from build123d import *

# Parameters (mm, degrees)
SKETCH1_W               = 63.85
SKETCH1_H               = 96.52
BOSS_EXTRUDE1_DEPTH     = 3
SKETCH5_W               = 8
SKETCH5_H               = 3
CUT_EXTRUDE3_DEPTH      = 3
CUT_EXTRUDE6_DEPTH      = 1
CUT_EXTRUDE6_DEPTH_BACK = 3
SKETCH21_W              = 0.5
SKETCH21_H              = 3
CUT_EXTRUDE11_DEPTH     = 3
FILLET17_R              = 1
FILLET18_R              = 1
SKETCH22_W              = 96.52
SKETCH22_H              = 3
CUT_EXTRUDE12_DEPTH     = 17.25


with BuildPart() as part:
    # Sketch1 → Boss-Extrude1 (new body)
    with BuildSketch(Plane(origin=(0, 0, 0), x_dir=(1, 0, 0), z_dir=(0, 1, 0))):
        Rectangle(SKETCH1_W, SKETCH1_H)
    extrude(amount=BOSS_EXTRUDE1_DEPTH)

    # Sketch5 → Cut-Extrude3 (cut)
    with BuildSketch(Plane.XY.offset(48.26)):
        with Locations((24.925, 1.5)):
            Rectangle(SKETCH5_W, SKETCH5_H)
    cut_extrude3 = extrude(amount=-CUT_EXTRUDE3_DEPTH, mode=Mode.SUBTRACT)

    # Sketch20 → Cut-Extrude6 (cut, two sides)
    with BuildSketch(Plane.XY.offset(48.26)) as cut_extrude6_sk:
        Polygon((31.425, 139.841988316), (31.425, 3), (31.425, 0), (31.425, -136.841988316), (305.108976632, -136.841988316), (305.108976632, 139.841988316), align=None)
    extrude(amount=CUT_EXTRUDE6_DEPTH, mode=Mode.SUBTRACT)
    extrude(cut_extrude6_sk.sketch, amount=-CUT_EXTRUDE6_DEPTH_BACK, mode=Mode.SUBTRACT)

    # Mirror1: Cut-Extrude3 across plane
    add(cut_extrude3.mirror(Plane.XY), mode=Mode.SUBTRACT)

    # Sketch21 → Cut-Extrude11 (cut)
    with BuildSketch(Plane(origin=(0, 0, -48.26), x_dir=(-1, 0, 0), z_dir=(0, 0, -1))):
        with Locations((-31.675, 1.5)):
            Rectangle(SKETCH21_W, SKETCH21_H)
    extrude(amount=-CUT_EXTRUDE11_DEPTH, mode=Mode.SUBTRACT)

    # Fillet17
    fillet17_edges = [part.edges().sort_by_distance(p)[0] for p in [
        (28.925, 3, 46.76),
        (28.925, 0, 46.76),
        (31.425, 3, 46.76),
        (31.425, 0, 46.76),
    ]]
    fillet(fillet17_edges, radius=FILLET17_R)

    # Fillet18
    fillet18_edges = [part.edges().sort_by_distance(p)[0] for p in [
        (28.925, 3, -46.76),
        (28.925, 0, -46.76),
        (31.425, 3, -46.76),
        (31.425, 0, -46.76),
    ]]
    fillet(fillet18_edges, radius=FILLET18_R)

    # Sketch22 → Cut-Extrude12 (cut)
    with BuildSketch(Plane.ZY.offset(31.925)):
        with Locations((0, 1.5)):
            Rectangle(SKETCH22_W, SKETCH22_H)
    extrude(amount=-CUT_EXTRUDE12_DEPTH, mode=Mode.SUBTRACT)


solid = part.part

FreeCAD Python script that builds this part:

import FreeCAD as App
import Part
import Sketcher

V = App.Vector


def edges_at(feature, points):
    """Names of the edges that pass closest to the given points."""
    edges = feature.Shape.Edges
    near = lambda p: min(range(len(edges)), key=lambda i: edges[i].distToShape(Part.Vertex(*p))[0])
    return sorted({f"Edge{near(p) + 1}" for p in points})

doc = App.newDocument("Part")
body = doc.addObject("PartDesign::Body", "Body")

# Sketch on XZ plane
sketch1 = body.newObject("Sketcher::SketchObject", "Sketch")
sketch1.AttachmentSupport = (doc.getObject("XZ_Plane"), [""])
sketch1.MapMode = "FlatFace"
sketch1.addGeometry(Part.LineSegment(V(-32, -48, 0), V(-32, 48, 0)), False)
sketch1.addGeometry(Part.LineSegment(V(-32, 48, 0), V(32, 48, 0)), False)
sketch1.addGeometry(Part.LineSegment(V(32, 48, 0), V(32, -48, 0)), False)
sketch1.addGeometry(Part.LineSegment(V(32, -48, 0), V(-32, -48, 0)), False)
sketch1.addConstraint(Sketcher.Constraint("Coincident", 0, 2, 1, 1))
sketch1.addConstraint(Sketcher.Constraint("Coincident", 1, 2, 2, 1))
sketch1.addConstraint(Sketcher.Constraint("Coincident", 2, 2, 3, 1))
sketch1.addConstraint(Sketcher.Constraint("Coincident", 3, 2, 0, 1))
sketch1.addConstraint(Sketcher.Constraint("Vertical", 0))
sketch1.addConstraint(Sketcher.Constraint("Horizontal", 1))
sketch1.addConstraint(Sketcher.Constraint("Vertical", 2))
sketch1.addConstraint(Sketcher.Constraint("Horizontal", 3))
sketch1.addConstraint(Sketcher.Constraint("Symmetric", 0, 2, 2, 2, -1, 1))
sketch1.addConstraint(Sketcher.Constraint("DistanceX", 1, 1, 1, 2, 63.85))
sketch1.addConstraint(Sketcher.Constraint("DistanceY", 0, 1, 0, 2, 96.52))
pad1 = body.newObject("PartDesign::Pad", "Pad")
pad1.Profile = sketch1
pad1.Length = 3
pad1.Reversed = True

# Sketch on XY plane
sketch2 = body.newObject("Sketcher::SketchObject", "Sketch001")
sketch2.AttachmentSupport = (doc.getObject("XY_Plane"), [""])
sketch2.MapMode = "FlatFace"
sketch2.AttachmentOffset = App.Placement(V(0, 0, 48.26), App.Rotation())
sketch2.addGeometry(Part.LineSegment(V(20.9, 3, 0), V(20.9, 0, 0)), False)
sketch2.addGeometry(Part.LineSegment(V(20.9, 0, 0), V(28.9, 0, 0)), False)
sketch2.addGeometry(Part.LineSegment(V(28.9, 0, 0), V(28.9, 3, 0)), False)
sketch2.addGeometry(Part.LineSegment(V(28.9, 3, 0), V(20.9, 3, 0)), False)
sketch2.addConstraint(Sketcher.Constraint("Coincident", 0, 2, 1, 1))
sketch2.addConstraint(Sketcher.Constraint("Coincident", 1, 2, 2, 1))
sketch2.addConstraint(Sketcher.Constraint("Coincident", 2, 2, 3, 1))
sketch2.addConstraint(Sketcher.Constraint("Coincident", 3, 2, 0, 1))
sketch2.addConstraint(Sketcher.Constraint("Vertical", 0))
sketch2.addConstraint(Sketcher.Constraint("Horizontal", 1))
sketch2.addConstraint(Sketcher.Constraint("Vertical", 2))
sketch2.addConstraint(Sketcher.Constraint("Horizontal", 3))
sketch2.addConstraint(Sketcher.Constraint("PointOnObject", 0, 2, -1))
sketch2.addConstraint(Sketcher.Constraint("DistanceX", 1, 1, 1, 2, 8.0))
sketch2.addConstraint(Sketcher.Constraint("DistanceY", 0, 2, 0, 1, 3.0))
sketch2.addConstraint(Sketcher.Constraint("DistanceX", -1, 1, 0, 2, 20.925))
pocket1 = body.newObject("PartDesign::Pocket", "Pocket")
pocket1.Profile = sketch2
pocket1.Length = 3

# Sketch on XY plane
sketch3 = body.newObject("Sketcher::SketchObject", "Sketch002")
sketch3.AttachmentSupport = (doc.getObject("XY_Plane"), [""])
sketch3.MapMode = "FlatFace"
sketch3.AttachmentOffset = App.Placement(V(0, 0, 48.26), App.Rotation())
sketch3.addGeometry(Part.LineSegment(V(31, 140, 0), V(31, -137, 0)), False)
sketch3.addGeometry(Part.LineSegment(V(31, -137, 0), V(305, -137, 0)), False)
sketch3.addGeometry(Part.LineSegment(V(305, -137, 0), V(305, 140, 0)), False)
sketch3.addGeometry(Part.LineSegment(V(305, 140, 0), V(31, 140, 0)), False)
sketch3.addConstraint(Sketcher.Constraint("Coincident", 0, 2, 1, 1))
sketch3.addConstraint(Sketcher.Constraint("Coincident", 1, 2, 2, 1))
sketch3.addConstraint(Sketcher.Constraint("Coincident", 2, 2, 3, 1))
sketch3.addConstraint(Sketcher.Constraint("Coincident", 3, 2, 0, 1))
sketch3.addConstraint(Sketcher.Constraint("Vertical", 0))
sketch3.addConstraint(Sketcher.Constraint("Horizontal", 1))
sketch3.addConstraint(Sketcher.Constraint("Vertical", 2))
sketch3.addConstraint(Sketcher.Constraint("Horizontal", 3))
sketch3.addConstraint(Sketcher.Constraint("DistanceX", -1, 1, 0, 2, 31.425))
sketch3.addConstraint(Sketcher.Constraint("DistanceX", 1, 1, 1, 2, 273.683977))
sketch3.addConstraint(Sketcher.Constraint("DistanceY", 0, 2, 0, 1, 276.683977))
sketch3.addConstraint(Sketcher.Constraint("DistanceY", 0, 2, -1, 1, 136.841988))
pocket2 = body.newObject("PartDesign::Pocket", "Pocket001")
pocket2.Profile = sketch3
pocket2.Type = "TwoLengths"
pocket2.Length = 1
pocket2.Length2 = 3
pocket2.Reversed = True
doc.recompute()

mirrored = body.newObject("PartDesign::Mirrored", "Mirrored")
mirrored.Originals = [pocket1]
mirrored.MirrorPlane = (doc.getObject("XY_Plane"), [""])
body.Tip = mirrored

# Sketch on XY plane
sketch4 = body.newObject("Sketcher::SketchObject", "Sketch003")
sketch4.AttachmentSupport = (doc.getObject("XY_Plane"), [""])
sketch4.MapMode = "FlatFace"
sketch4.AttachmentOffset = App.Placement(V(0, 0, -48.26), App.Rotation())
sketch4.addGeometry(Part.LineSegment(V(31.9, 3, 0), V(31.9, 0, 0)), False)
sketch4.addGeometry(Part.LineSegment(V(31.9, 0, 0), V(31.4, 0, 0)), False)
sketch4.addGeometry(Part.LineSegment(V(31.4, 0, 0), V(31.4, 3, 0)), False)
sketch4.addGeometry(Part.LineSegment(V(31.4, 3, 0), V(31.9, 3, 0)), False)
sketch4.addConstraint(Sketcher.Constraint("Coincident", 0, 2, 1, 1))
sketch4.addConstraint(Sketcher.Constraint("Coincident", 1, 2, 2, 1))
sketch4.addConstraint(Sketcher.Constraint("Coincident", 2, 2, 3, 1))
sketch4.addConstraint(Sketcher.Constraint("Coincident", 3, 2, 0, 1))
sketch4.addConstraint(Sketcher.Constraint("Vertical", 0))
sketch4.addConstraint(Sketcher.Constraint("Horizontal", 1))
sketch4.addConstraint(Sketcher.Constraint("Vertical", 2))
sketch4.addConstraint(Sketcher.Constraint("Horizontal", 3))
sketch4.addConstraint(Sketcher.Constraint("PointOnObject", 0, 2, -1))
sketch4.addConstraint(Sketcher.Constraint("DistanceY", 0, 2, 0, 1, 3.0))
sketch4.addConstraint(Sketcher.Constraint("DistanceX", 1, 2, 1, 1, 0.5))
sketch4.addConstraint(Sketcher.Constraint("DistanceX", -1, 1, 0, 2, 31.925))
pocket3 = body.newObject("PartDesign::Pocket", "Pocket002")
pocket3.Profile = sketch4
pocket3.Length = 3
pocket3.Reversed = True
doc.recompute()

fillet = body.newObject("PartDesign::Fillet", "Fillet")
fillet.Base = (pocket3, edges_at(pocket3, [
    (28.925, 3, 46.76),
    (28.925, 0, 46.76),
    (31.425, 3, 46.76),
    (31.425, 0, 46.76),
]))
fillet.Radius = 1
doc.recompute()

fillet2 = body.newObject("PartDesign::Fillet", "Fillet001")
fillet2.Base = (fillet, edges_at(fillet, [
    (28.925, 3, -46.76),
    (28.925, 0, -46.76),
    (31.425, 3, -46.76),
    (31.425, 0, -46.76),
]))
fillet2.Radius = 1

# Sketch on YZ plane
sketch5 = body.newObject("Sketcher::SketchObject", "Sketch004")
sketch5.AttachmentSupport = (doc.getObject("YZ_Plane"), [""])
sketch5.MapMode = "FlatFace"
sketch5.AttachmentOffset = App.Placement(V(0, 0, -31.925), App.Rotation())
sketch5.addGeometry(Part.LineSegment(V(3, -48.3, 0), V(0, -48.3, 0)), False)
sketch5.addGeometry(Part.LineSegment(V(0, -48.3, 0), V(0, 48.3, 0)), False)
sketch5.addGeometry(Part.LineSegment(V(0, 48.3, 0), V(3, 48.3, 0)), False)
sketch5.addGeometry(Part.LineSegment(V(3, 48.3, 0), V(3, -48.3, 0)), False)
sketch5.addConstraint(Sketcher.Constraint("Coincident", 0, 2, 1, 1))
sketch5.addConstraint(Sketcher.Constraint("Coincident", 1, 2, 2, 1))
sketch5.addConstraint(Sketcher.Constraint("Coincident", 2, 2, 3, 1))
sketch5.addConstraint(Sketcher.Constraint("Coincident", 3, 2, 0, 1))
sketch5.addConstraint(Sketcher.Constraint("Horizontal", 0))
sketch5.addConstraint(Sketcher.Constraint("Vertical", 1))
sketch5.addConstraint(Sketcher.Constraint("Horizontal", 2))
sketch5.addConstraint(Sketcher.Constraint("Vertical", 3))
sketch5.addConstraint(Sketcher.Constraint("Symmetric", 0, 2, 1, 2, -1, 1))
sketch5.addConstraint(Sketcher.Constraint("DistanceX", 0, 2, 0, 1, 3.0))
sketch5.addConstraint(Sketcher.Constraint("DistanceY", 1, 1, 1, 2, 96.52))
pocket4 = body.newObject("PartDesign::Pocket", "Pocket003")
pocket4.Profile = sketch5
pocket4.Length = 17.25
pocket4.Reversed = True

doc.recompute()
